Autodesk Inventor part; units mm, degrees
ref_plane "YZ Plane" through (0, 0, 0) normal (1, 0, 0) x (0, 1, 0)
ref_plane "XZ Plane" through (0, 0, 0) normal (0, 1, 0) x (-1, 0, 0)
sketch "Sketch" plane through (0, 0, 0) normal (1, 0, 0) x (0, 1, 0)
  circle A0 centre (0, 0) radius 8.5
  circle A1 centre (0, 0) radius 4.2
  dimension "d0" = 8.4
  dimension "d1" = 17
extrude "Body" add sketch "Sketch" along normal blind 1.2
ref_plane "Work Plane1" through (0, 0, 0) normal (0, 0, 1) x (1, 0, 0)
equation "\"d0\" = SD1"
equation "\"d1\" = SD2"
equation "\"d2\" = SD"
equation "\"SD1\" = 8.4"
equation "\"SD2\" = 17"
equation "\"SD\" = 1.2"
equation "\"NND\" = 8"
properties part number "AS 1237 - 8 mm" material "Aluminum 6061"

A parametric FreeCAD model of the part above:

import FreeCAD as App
import Part
import Sketcher

V = App.Vector
Q = App.Units.Quantity

doc = App.newDocument("Part")
body = doc.addObject("PartDesign::Body", "Body")

# Sketch on YZ plane
sketch1 = body.newObject("Sketcher::SketchObject", "Sketch")
sketch1.AttachmentSupport = (doc.getObject("YZ_Plane"), [""])
sketch1.MapMode = "FlatFace"
sketch1.addGeometry([
    Part.Circle(V(0, 0, 0), V(0, 0, 1), 8.5),
    Part.Circle(V(0, 0, 0), V(0, 0, 1), 4.2),
], False)
sketch1.addConstraint([
    Sketcher.Constraint("Coincident", 0, 3, -1, 1),
    Sketcher.Constraint("Coincident", 1, 3, -1, 1),
    Sketcher.Constraint("Diameter", 0, Q("17 mm")),
    Sketcher.Constraint("Diameter", 1, Q("8.4 mm")),
])
pad1 = body.newObject("PartDesign::Pad", "Pad")
pad1.Profile = sketch1
pad1.Length = 1.2

doc.recompute()
